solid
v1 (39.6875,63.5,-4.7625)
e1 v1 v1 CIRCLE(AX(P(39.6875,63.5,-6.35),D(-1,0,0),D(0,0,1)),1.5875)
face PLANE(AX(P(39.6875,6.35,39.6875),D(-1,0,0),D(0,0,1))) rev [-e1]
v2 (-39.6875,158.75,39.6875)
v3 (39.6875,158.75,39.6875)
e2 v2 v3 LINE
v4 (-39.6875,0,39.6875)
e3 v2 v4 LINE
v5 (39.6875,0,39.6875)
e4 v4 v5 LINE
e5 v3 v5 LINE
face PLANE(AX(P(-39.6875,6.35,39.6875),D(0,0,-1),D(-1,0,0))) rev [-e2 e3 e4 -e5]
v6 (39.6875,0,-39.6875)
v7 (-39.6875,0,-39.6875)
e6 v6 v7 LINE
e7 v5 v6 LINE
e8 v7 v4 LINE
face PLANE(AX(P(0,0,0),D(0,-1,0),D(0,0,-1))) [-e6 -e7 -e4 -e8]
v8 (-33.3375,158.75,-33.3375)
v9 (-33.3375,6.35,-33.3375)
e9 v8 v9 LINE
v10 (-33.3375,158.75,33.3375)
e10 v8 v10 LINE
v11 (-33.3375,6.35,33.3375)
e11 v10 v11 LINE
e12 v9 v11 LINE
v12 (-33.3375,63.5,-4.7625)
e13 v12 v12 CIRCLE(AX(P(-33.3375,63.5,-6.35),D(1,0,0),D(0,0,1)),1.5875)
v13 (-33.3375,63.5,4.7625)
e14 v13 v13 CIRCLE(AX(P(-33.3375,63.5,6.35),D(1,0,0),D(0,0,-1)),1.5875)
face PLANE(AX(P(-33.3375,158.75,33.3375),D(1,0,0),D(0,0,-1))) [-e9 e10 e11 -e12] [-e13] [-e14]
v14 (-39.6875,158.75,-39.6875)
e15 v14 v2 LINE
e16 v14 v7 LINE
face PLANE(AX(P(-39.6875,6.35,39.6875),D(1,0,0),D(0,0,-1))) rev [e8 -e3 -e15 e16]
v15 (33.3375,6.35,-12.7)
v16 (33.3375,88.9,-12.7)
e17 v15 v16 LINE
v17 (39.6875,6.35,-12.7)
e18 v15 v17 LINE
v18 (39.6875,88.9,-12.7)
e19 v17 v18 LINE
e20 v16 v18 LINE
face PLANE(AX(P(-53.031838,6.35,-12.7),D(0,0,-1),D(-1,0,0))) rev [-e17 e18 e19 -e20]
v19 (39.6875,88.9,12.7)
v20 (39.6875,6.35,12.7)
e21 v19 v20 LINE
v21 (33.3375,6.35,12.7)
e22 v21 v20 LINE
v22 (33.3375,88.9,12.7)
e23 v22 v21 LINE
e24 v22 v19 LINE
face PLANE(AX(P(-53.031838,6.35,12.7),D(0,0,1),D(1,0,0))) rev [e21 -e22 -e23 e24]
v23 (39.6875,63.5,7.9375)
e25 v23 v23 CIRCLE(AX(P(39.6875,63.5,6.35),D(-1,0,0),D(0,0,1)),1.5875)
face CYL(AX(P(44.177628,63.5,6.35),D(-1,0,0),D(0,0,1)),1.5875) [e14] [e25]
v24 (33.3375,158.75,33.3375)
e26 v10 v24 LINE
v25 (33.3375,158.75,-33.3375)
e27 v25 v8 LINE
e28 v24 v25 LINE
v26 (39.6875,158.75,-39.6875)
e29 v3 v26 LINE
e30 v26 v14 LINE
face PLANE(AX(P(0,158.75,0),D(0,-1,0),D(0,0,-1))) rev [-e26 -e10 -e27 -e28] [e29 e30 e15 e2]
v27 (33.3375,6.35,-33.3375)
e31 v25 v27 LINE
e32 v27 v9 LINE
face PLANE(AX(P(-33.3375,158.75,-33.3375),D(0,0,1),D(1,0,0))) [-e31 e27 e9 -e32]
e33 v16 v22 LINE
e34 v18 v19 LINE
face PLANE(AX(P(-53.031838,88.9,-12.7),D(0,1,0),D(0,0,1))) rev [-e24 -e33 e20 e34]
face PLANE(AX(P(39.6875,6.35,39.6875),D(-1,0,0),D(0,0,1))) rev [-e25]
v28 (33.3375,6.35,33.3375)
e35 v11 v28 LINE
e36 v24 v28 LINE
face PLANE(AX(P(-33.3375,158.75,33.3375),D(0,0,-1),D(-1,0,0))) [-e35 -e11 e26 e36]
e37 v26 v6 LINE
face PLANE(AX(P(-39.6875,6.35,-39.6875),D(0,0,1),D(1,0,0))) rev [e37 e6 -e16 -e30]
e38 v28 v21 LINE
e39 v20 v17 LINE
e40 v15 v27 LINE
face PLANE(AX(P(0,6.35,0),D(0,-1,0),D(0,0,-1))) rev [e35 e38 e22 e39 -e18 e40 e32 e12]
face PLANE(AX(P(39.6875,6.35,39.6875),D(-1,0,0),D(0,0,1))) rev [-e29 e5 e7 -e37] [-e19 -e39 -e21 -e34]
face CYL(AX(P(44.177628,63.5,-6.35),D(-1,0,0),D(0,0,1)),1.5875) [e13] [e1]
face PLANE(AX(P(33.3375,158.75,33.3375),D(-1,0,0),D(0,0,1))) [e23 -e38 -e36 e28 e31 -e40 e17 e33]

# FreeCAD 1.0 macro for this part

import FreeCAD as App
import Part
import Sketcher
from FreeCAD import Vector
Q = App.Units.Quantity

doc = App.newDocument("Part")
params = doc.addObject("Spreadsheet::Sheet", "Params")
for row, (alias, value) in enumerate([
    ("sketch1_width", "3.125 in"),
    ("pad1_length", "0.25 in"),
    ("sketch2_width", "3.125 in"),
    ("sketch2_width2", "2.625 in"),
    ("pad2_length", "6 in"),
    ("sketch3_height", "1 in"),
    ("sketch3_width", "3.25 in"),
    ("pocket1_length", "0.25 in"),
    ("sketch4_diameter", "0.125 in"),
    ("pad3_length", "2.875 in"),
], start=1):
    params.set(f"A{row}", alias)
    params.set(f"B{row}", "=" + value)
    params.setAlias(f"B{row}", alias)

body = doc.addObject("PartDesign::Body", "Body")

# Sketch on XZ plane
sketch1 = doc.addObject("Sketcher::SketchObject", "Sketch")
body.addObject(sketch1)
sketch1.AttachmentSupport = (doc.XZ_Plane, [""])
sketch1.MapMode = "FlatFace"
sketch1.addGeometry([
    Part.LineSegment(Vector(-40, -40, 0), Vector(-40, 40, 0)),
    Part.LineSegment(Vector(-40, 40, 0), Vector(40, 40, 0)),
    Part.LineSegment(Vector(40, 40, 0), Vector(40, -40, 0)),
    Part.LineSegment(Vector(40, -40, 0), Vector(-40, -40, 0)),
], False)
sketch1.addConstraint([
    Sketcher.Constraint("Coincident", 0, 2, 1, 1),
    Sketcher.Constraint("Coincident", 1, 2, 2, 1),
    Sketcher.Constraint("Coincident", 2, 2, 3, 1),
    Sketcher.Constraint("Coincident", 3, 2, 0, 1),
    Sketcher.Constraint("Vertical", 0),
    Sketcher.Constraint("Horizontal", 1),
    Sketcher.Constraint("Vertical", 2),
    Sketcher.Constraint("Horizontal", 3),
    Sketcher.Constraint("Symmetric", 0, 2, 2, 2, -1, 1),
    Sketcher.Constraint("Equal", 3, 0),
    Sketcher.Constraint("DistanceX", 1, 1, 1, 2, Q("3.125 in")),
])
sketch1.setExpression("Constraints[10]", "Params.sketch1_width")
pad1 = doc.addObject("PartDesign::Pad", "Pad")
body.addObject(pad1)
pad1.Profile = sketch1
pad1.setExpression("Length", "Params.pad1_length")
pad1.Reversed = True

# Sketch on XZ plane
sketch2 = doc.addObject("Sketcher::SketchObject", "Sketch001")
body.addObject(sketch2)
sketch2.AttachmentSupport = (doc.XZ_Plane, [""])
sketch2.MapMode = "FlatFace"
sketch2.AttachmentOffset = App.Placement(Vector(0, 0, -0.25 * 25.4), App.Rotation())
sketch2.addGeometry([
    Part.LineSegment(Vector(-40, -40, 0), Vector(-40, 40, 0)),  # 0
    Part.LineSegment(Vector(-40, 40, 0), Vector(40, 40, 0)),  # 1
    Part.LineSegment(Vector(40, 40, 0), Vector(40, -40, 0)),  # 2
    Part.LineSegment(Vector(40, -40, 0), Vector(-40, -40, 0)),  # 3
    Part.LineSegment(Vector(33, 33, 0), Vector(-33, 33, 0)),  # 4
    Part.LineSegment(Vector(-33, 33, 0), Vector(-33, -33, 0)),  # 5
    Part.LineSegment(Vector(-33, -33, 0), Vector(33, -33, 0)),  # 6
    Part.LineSegment(Vector(33, -33, 0), Vector(33, 33, 0)),  # 7
], False)
sketch2.addConstraint([
    Sketcher.Constraint("Coincident", 0, 2, 1, 1),
    Sketcher.Constraint("Coincident", 1, 2, 2, 1),
    Sketcher.Constraint("Coincident", 2, 2, 3, 1),
    Sketcher.Constraint("Coincident", 3, 2, 0, 1),
    Sketcher.Constraint("Coincident", 4, 2, 5, 1),
    Sketcher.Constraint("Coincident", 5, 2, 6, 1),
    Sketcher.Constraint("Coincident", 6, 2, 7, 1),
    Sketcher.Constraint("Coincident", 7, 2, 4, 1),
    Sketcher.Constraint("Vertical", 0),
    Sketcher.Constraint("Horizontal", 1),
    Sketcher.Constraint("Vertical", 2),
    Sketcher.Constraint("Horizontal", 3),
    Sketcher.Constraint("Horizontal", 4),
    Sketcher.Constraint("Vertical", 5),
    Sketcher.Constraint("Horizontal", 6),
    Sketcher.Constraint("Vertical", 7),
    Sketcher.Constraint("Symmetric", 0, 2, 2, 2, -1, 1),
    Sketcher.Constraint("Symmetric", 4, 2, 6, 2, -1, 1),
    Sketcher.Constraint("Equal", 3, 0),
    Sketcher.Constraint("Equal", 6, 5),
    Sketcher.Constraint("DistanceX", 1, 1, 1, 2, Q("3.125 in")),
    Sketcher.Constraint("DistanceX", 4, 2, 4, 1, Q("2.625 in")),
])
sketch2.setExpression("Constraints[20]", "Params.sketch2_width")
sketch2.setExpression("Constraints[21]", "Params.sketch2_width2")
pad2 = doc.addObject("PartDesign::Pad", "Pad001")
body.addObject(pad2)
pad2.Profile = sketch2
pad2.setExpression("Length", "Params.pad2_length")
pad2.Reversed = True

# Sketch on YZ plane
sketch3 = doc.addObject("Sketcher::SketchObject", "Sketch002")
body.addObject(sketch3)
sketch3.AttachmentSupport = (doc.YZ_Plane, [""])
sketch3.MapMode = "FlatFace"
sketch3.AttachmentOffset = App.Placement(Vector(0, 0, 1.5625 * 25.4), App.Rotation())
sketch3.addGeometry([
    Part.LineSegment(Vector(89, 13, 0), Vector(6, 13, 0)),
    Part.LineSegment(Vector(6, 13, 0), Vector(6, -13, 0)),
    Part.LineSegment(Vector(6, -13, 0), Vector(89, -13, 0)),
    Part.LineSegment(Vector(89, -13, 0), Vector(89, 13, 0)),
], False)
sketch3.addConstraint([
    Sketcher.Constraint("Coincident", 0, 2, 1, 1),
    Sketcher.Constraint("Coincident", 1, 2, 2, 1),
    Sketcher.Constraint("Coincident", 2, 2, 3, 1),
    Sketcher.Constraint("Coincident", 3, 2, 0, 1),
    Sketcher.Constraint("Horizontal", 0),
    Sketcher.Constraint("Vertical", 1),
    Sketcher.Constraint("Horizontal", 2),
    Sketcher.Constraint("Vertical", 3),
    Sketcher.Constraint("DistanceY", 1, 2, 1, 1, Q("1 in")),
    Sketcher.Constraint("DistanceX", 0, 2, 0, 1, Q("3.25 in")),
    Sketcher.Constraint("DistanceY", -1, 1, 0, 2, Q("0.5 in")),
    Sketcher.Constraint("DistanceX", -1, 1, 2, 2, Q("3.5 in")),
])
sketch3.setExpression("Constraints[8]", "Params.sketch3_height")
sketch3.setExpression("Constraints[9]", "Params.sketch3_width")
pocket1 = doc.addObject("PartDesign::Pocket", "Pocket")
body.addObject(pocket1)
pocket1.Profile = sketch3
pocket1.setExpression("Length", "Params.pocket1_length")

# Sketch on YZ plane
sketch4 = doc.addObject("Sketcher::SketchObject", "Sketch003")
body.addObject(sketch4)
sketch4.AttachmentSupport = (doc.YZ_Plane, [""])
sketch4.MapMode = "FlatFace"
sketch4.AttachmentOffset = App.Placement(Vector(0, 0, -1.3125 * 25.4), App.Rotation())
sketch4.addGeometry([
    Part.Circle(Vector(63.5, 6.3, 0), Vector(0, 0, 1), 1.6),
    Part.Circle(Vector(63.5, -6.3, 0), Vector(0, 0, 1), 1.6),
], False)
sketch4.addConstraint([
    Sketcher.Constraint("Equal", 0, 1),
    Sketcher.Constraint("Symmetric", 0, 3, 1, 3, -1),
    Sketcher.Constraint("Diameter", 0, Q("0.125 in")),
    Sketcher.Constraint("DistanceX", -1, 1, 0, 3, Q("2.5 in")),
    Sketcher.Constraint("DistanceY", 1, 3, 0, 3, Q("0.5 in")),
])
sketch4.setExpression("Constraints[2]", "Params.sketch4_diameter")
pad3 = doc.addObject("PartDesign::Pad", "Pad002")
body.addObject(pad3)
pad3.Profile = sketch4
pad3.setExpression("Length", "Params.pad3_length")

doc.recompute()
